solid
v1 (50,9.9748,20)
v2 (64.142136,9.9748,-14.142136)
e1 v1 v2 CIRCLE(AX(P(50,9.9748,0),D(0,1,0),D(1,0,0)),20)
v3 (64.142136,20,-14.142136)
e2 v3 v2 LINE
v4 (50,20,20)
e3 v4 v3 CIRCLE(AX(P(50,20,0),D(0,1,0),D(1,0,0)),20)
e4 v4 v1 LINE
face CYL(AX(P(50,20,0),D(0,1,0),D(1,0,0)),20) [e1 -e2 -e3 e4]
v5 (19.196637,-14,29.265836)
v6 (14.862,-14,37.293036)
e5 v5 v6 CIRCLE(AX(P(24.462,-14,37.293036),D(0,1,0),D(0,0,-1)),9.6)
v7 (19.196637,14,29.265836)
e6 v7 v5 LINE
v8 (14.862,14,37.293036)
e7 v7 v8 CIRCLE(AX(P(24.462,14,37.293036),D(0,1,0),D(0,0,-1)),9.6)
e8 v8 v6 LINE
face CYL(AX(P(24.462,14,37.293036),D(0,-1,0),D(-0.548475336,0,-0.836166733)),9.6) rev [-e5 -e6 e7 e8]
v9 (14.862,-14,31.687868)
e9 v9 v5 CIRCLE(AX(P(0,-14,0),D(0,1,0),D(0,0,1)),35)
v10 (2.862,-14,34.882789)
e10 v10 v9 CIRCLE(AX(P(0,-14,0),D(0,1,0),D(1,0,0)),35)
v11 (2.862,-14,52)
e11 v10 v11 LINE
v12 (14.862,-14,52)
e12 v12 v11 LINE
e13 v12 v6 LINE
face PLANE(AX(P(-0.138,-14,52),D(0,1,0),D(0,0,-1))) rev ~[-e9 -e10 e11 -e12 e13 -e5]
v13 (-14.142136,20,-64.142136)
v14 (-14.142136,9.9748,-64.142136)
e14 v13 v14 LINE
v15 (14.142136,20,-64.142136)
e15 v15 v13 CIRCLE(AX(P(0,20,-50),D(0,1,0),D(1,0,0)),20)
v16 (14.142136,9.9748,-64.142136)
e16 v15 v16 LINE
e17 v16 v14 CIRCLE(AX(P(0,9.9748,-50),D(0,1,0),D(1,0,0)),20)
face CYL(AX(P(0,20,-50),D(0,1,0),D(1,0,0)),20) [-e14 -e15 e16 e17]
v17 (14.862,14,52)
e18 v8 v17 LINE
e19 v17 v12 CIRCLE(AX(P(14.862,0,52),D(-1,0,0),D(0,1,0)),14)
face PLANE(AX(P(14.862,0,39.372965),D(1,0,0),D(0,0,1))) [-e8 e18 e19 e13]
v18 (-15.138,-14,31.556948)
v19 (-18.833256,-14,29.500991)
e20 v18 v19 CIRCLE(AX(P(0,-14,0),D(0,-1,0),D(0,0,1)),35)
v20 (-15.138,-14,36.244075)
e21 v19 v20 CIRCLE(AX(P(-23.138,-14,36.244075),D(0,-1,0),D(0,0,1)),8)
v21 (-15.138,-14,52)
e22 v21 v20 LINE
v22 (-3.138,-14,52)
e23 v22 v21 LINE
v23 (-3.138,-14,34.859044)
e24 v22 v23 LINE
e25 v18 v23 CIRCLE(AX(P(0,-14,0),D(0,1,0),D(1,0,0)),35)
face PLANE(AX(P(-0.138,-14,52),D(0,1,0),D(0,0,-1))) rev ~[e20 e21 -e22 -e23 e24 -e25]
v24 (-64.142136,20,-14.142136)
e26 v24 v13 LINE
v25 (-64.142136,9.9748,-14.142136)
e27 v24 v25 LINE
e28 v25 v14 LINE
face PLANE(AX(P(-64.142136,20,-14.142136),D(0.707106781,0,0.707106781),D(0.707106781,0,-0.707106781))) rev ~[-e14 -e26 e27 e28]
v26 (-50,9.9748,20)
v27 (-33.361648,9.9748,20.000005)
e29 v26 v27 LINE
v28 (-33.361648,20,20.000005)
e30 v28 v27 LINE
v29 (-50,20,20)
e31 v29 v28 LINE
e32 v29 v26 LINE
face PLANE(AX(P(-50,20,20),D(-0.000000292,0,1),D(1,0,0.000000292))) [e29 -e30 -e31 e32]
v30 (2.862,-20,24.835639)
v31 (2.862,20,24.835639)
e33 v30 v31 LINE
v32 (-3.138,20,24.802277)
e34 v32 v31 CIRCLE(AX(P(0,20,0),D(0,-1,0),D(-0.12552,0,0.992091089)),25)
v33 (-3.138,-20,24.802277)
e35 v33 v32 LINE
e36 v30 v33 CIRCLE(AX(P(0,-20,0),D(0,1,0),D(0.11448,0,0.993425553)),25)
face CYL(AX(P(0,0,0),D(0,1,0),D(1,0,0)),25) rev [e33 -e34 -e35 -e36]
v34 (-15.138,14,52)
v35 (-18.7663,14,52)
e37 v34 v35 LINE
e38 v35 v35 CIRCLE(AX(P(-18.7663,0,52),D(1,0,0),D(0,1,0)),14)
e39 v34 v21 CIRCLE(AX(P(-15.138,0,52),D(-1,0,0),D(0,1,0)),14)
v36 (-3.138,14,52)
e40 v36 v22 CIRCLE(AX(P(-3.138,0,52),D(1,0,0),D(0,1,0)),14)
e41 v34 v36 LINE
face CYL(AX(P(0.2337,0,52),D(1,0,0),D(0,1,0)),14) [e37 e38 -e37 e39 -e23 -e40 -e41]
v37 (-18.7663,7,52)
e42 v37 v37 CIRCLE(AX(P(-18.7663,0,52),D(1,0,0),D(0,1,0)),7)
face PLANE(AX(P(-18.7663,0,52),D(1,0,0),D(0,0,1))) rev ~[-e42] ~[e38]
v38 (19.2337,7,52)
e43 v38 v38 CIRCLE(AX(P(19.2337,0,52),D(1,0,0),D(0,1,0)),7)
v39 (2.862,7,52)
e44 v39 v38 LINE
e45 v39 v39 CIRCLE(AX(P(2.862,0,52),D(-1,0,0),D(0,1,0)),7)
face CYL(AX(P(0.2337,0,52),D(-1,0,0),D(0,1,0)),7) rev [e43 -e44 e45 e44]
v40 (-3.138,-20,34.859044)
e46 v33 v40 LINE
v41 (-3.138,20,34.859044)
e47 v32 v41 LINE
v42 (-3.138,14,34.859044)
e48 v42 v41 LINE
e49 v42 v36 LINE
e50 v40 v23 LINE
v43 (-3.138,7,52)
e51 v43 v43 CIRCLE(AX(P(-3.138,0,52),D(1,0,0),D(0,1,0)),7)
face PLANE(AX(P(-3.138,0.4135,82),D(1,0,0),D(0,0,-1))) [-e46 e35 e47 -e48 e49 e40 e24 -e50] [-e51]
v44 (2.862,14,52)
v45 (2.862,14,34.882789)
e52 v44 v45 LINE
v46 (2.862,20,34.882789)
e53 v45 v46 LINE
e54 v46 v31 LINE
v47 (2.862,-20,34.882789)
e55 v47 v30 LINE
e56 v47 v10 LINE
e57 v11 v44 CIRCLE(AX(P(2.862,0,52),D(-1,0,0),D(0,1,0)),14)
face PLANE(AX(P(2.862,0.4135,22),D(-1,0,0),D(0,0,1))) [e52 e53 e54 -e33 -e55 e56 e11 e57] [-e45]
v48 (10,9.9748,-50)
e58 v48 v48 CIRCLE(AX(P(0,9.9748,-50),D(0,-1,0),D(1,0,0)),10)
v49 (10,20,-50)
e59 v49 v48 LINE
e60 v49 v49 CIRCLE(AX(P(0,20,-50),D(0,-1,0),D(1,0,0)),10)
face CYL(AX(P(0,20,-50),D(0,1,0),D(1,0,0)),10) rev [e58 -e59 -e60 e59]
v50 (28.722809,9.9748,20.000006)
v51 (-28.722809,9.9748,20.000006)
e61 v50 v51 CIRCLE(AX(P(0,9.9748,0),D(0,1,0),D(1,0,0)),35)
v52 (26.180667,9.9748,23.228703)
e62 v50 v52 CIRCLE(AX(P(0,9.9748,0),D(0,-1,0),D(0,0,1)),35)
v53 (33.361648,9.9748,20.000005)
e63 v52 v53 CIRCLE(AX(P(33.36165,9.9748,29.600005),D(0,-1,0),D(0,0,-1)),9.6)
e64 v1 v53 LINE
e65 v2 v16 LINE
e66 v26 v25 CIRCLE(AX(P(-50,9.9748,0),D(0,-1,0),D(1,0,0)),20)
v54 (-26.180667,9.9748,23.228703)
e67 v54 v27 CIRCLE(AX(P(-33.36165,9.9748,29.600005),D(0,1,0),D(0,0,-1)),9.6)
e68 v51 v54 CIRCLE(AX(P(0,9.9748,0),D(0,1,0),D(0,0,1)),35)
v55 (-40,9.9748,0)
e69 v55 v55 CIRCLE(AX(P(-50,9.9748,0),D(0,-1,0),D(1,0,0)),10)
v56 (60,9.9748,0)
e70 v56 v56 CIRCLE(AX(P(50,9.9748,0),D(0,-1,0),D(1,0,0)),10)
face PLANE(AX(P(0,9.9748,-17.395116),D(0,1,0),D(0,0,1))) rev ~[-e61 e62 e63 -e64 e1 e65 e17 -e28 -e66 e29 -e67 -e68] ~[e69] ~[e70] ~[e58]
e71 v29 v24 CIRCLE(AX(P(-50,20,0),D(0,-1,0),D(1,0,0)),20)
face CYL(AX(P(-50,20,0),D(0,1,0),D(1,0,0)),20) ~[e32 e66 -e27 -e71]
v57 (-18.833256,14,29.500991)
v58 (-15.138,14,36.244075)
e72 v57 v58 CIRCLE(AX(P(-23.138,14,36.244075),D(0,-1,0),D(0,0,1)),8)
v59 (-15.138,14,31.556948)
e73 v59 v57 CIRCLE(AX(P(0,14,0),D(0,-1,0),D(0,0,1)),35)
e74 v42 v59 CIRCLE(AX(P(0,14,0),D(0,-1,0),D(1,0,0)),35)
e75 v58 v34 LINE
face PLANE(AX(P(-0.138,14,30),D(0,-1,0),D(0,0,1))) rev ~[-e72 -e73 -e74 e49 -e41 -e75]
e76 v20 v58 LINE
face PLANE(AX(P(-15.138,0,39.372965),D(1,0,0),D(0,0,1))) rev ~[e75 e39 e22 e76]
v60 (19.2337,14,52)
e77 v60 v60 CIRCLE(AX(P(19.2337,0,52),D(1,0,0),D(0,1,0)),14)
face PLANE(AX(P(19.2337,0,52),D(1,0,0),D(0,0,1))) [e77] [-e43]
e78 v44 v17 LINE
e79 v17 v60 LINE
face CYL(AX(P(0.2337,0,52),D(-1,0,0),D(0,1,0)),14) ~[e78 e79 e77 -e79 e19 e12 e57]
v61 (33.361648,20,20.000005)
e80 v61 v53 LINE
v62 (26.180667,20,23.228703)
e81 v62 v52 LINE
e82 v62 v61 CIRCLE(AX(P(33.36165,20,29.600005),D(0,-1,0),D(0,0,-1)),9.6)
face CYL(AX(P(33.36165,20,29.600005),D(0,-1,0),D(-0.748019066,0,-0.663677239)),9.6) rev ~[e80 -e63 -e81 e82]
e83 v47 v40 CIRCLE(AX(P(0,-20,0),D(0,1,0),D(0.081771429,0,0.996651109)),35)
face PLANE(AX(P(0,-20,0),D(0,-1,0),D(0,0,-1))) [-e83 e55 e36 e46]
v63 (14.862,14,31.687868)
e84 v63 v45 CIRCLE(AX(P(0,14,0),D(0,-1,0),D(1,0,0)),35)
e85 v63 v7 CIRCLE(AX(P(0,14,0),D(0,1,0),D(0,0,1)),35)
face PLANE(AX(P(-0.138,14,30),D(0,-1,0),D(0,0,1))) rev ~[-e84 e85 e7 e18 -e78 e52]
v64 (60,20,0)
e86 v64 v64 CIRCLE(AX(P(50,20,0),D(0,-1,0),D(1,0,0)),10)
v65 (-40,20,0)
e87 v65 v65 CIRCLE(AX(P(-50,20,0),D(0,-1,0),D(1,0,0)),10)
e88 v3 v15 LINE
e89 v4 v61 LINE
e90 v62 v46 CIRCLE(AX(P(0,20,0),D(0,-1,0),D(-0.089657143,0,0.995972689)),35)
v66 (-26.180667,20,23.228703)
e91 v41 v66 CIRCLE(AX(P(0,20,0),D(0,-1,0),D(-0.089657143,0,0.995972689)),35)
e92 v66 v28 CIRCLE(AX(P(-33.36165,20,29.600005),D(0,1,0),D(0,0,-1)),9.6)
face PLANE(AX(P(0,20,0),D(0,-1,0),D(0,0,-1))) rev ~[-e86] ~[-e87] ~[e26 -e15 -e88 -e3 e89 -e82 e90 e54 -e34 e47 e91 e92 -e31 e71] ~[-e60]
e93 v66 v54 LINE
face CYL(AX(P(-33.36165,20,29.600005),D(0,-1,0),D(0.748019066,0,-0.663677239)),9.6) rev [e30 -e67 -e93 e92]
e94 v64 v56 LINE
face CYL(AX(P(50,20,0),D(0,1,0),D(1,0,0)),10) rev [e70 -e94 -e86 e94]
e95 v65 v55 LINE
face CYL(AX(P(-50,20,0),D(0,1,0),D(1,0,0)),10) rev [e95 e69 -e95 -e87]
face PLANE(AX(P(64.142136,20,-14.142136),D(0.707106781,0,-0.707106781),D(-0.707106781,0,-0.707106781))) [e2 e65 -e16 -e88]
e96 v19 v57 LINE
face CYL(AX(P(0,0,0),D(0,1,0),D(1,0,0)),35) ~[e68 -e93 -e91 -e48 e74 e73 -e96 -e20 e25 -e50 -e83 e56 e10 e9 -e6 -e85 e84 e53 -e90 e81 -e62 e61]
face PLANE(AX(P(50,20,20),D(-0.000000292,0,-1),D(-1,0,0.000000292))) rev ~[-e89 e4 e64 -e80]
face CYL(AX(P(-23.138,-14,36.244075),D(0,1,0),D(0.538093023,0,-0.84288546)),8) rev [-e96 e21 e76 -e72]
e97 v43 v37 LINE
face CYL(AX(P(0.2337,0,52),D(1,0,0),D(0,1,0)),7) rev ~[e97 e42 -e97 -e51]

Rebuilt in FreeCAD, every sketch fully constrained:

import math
import FreeCAD as App
import Part
import Sketcher
Q = App.Units.Quantity


def edges_at(feature, points):
    """Names of the edges that pass closest to the given points."""
    edges = feature.Shape.Edges
    near = lambda p: min(range(len(edges)), key=lambda i: edges[i].distToShape(Part.Vertex(*p))[0])
    return sorted({f"Edge{near(p) + 1}" for p in points})


def add_polygon(sketch, points):
    """Adds a closed chain of lines whose ends are joined by coincident constraints."""
    first, n = sketch.GeometryCount, len(points)
    for a, b in zip(points, points[1:] + points[:1]):
        sketch.addGeometry(Part.LineSegment(App.Vector(*a, 0), App.Vector(*b, 0)), False)
    for i in range(n):
        sketch.addConstraint(Sketcher.Constraint("Coincident", first + i, 2, first + (i + 1) % n, 1))

doc = App.newDocument("Part")
body = doc.addObject("PartDesign::Body", "Body")

# Sketch on XZ plane
sketch1 = doc.addObject("Sketcher::SketchObject", "Sketch")
body.addObject(sketch1)
sketch1.AttachmentSupport = (doc.XZ_Plane, [""])
sketch1.MapMode = "FlatFace"
sketch1.addGeometry([
    Part.Circle(App.Vector(0, 0, 0), App.Vector(0, 0, 1), 35),
    Part.Circle(App.Vector(0, 0, 0), App.Vector(0, 0, 1), 25),
], False)
sketch1.addConstraint([
    Sketcher.Constraint("Coincident", 0, 3, -1, 1),
    Sketcher.Constraint("Coincident", 1, 3, -1, 1),
    Sketcher.Constraint("Diameter", 0, Q("70 mm")),
    Sketcher.Constraint("Diameter", 1, Q("50 mm")),
])
pad1 = doc.addObject("PartDesign::Pad", "Pad")
body.addObject(pad1)
pad1.Profile = sketch1
pad1.Length = 40
pad1.Midplane = True

# Sketch on YZ plane
sketch2 = doc.addObject("Sketcher::SketchObject", "Sketch001")
body.addObject(sketch2)
sketch2.AttachmentSupport = (doc.YZ_Plane, [""])
sketch2.MapMode = "FlatFace"
sketch2.AttachmentOffset = App.Placement(App.Vector(0, 0, -0.138), App.Rotation())
sketch2.addGeometry([
    Part.LineSegment(App.Vector(-14, 52, 0), App.Vector(-14, 30, 0)),
    Part.LineSegment(App.Vector(-14, 30, 0), App.Vector(14, 30, 0)),
    Part.LineSegment(App.Vector(14, 30, 0), App.Vector(14, 52, 0)),
    Part.ArcOfCircle(Part.Circle(App.Vector(0, 52, 0), App.Vector(0, 0, 1), 14), math.radians(180), math.radians(360)),
], False)
sketch2.addConstraint([
    Sketcher.Constraint("Coincident", 0, 2, 1, 1),
    Sketcher.Constraint("Coincident", 1, 2, 2, 1),
    Sketcher.Constraint("Tangent", 2, 2, 3, 2),
    Sketcher.Constraint("Tangent", 3, 1, 0, 1),
    Sketcher.Constraint("Vertical", 0),
    Sketcher.Constraint("Horizontal", 1),
    Sketcher.Constraint("Vertical", 2),
    Sketcher.Constraint("PointOnObject", 3, 3, -2),
    Sketcher.Constraint("Radius", 3, Q("14 mm")),
    Sketcher.Constraint("DistanceY", 0, 2, 0, 1, Q("22 mm")),
    Sketcher.Constraint("DistanceY", -1, 1, 3, 3, Q("52 mm")),
])
pad2 = doc.addObject("PartDesign::Pad", "Pad001")
body.addObject(pad2)
pad2.Profile = sketch2
pad2.Length = 30
pad2.Midplane = True

# Sketch on YZ plane
sketch3 = doc.addObject("Sketcher::SketchObject", "Sketch002")
body.addObject(sketch3)
sketch3.AttachmentSupport = (doc.YZ_Plane, [""])
sketch3.MapMode = "FlatFace"
sketch3.AttachmentOffset = App.Placement(App.Vector(0, 0, 0.2337), App.Rotation())
sketch3.addGeometry([
    Part.Circle(App.Vector(0, 52, 0), App.Vector(0, 0, 1), 14),
    Part.Circle(App.Vector(0, 52, 0), App.Vector(0, 0, 1), 7),
], False)
sketch3.addConstraint([
    Sketcher.Constraint("Coincident", 1, 3, 0, 3),
    Sketcher.Constraint("PointOnObject", 0, 3, -2),
    Sketcher.Constraint("Diameter", 0, Q("28 mm")),
    Sketcher.Constraint("Diameter", 1, Q("14 mm")),
    Sketcher.Constraint("DistanceY", -1, 1, 0, 3, Q("52 mm")),
])
pad3 = doc.addObject("PartDesign::Pad", "Pad002")
body.addObject(pad3)
pad3.Profile = sketch3
pad3.Length = 38
pad3.Midplane = True

# Sketch on XZ plane
sketch4 = doc.addObject("Sketcher::SketchObject", "Sketch003")
body.addObject(sketch4)
sketch4.AttachmentSupport = (doc.XZ_Plane, [""])
sketch4.MapMode = "FlatFace"
sketch4.AttachmentOffset = App.Placement(App.Vector(0, 0, -0.4135), App.Rotation())
add_polygon(sketch4, [(-3, 22), (3, 22), (3, 82), (-3, 82)])  # lines 0-3
sketch4.addConstraint([
    Sketcher.Constraint("Horizontal", 0),
    Sketcher.Constraint("Vertical", 1),
    Sketcher.Constraint("Horizontal", 2),
    Sketcher.Constraint("Vertical", 3),
    Sketcher.Constraint("DistanceX", 0, 1, 0, 2, Q("6 mm")),
    Sketcher.Constraint("DistanceY", 1, 1, 1, 2, Q("60 mm")),
    Sketcher.Constraint("DistanceY", -1, 1, 0, 2, Q("22 mm")),
    Sketcher.Constraint("DistanceX", -1, 1, 0, 2, Q("2.862 mm")),
])
pocket1 = doc.addObject("PartDesign::Pocket", "Pocket")
body.addObject(pocket1)
pocket1.Profile = sketch4
pocket1.Length = 100.3367
pocket1.Midplane = True

# Sketch on XZ plane
sketch5 = doc.addObject("Sketcher::SketchObject", "Sketch004")
body.addObject(sketch5)
sketch5.AttachmentSupport = (doc.XZ_Plane, [""])
sketch5.MapMode = "FlatFace"
sketch5.AttachmentOffset = App.Placement(App.Vector(0, 0, -20), App.Rotation())
sketch5.addGeometry([
    Part.ArcOfCircle(Part.Circle(App.Vector(50, 0, 0), App.Vector(0, 0, 1), 20), math.radians(-45), math.radians(90)),  # 0
    Part.LineSegment(App.Vector(50, 20, 0), App.Vector(29, 20, 0)),  # 1
    Part.ArcOfCircle(Part.Circle(App.Vector(0, 0, 0), App.Vector(0, 0, 1), 35), math.radians(145), math.radians(395)),  # 2
    Part.LineSegment(App.Vector(-29, 20, 0), App.Vector(-50, 20, 0)),  # 3
    Part.ArcOfCircle(Part.Circle(App.Vector(-50, 0, 0), App.Vector(0, 0, 1), 20), math.radians(90), math.radians(225)),  # 4
    Part.LineSegment(App.Vector(-64, -14, 0), App.Vector(-14, -64, 0)),  # 5
    Part.ArcOfCircle(Part.Circle(App.Vector(0, -50, 0), App.Vector(0, 0, 1), 20), math.radians(-135), math.radians(-45)),  # 6
    Part.LineSegment(App.Vector(14, -64, 0), App.Vector(64, -14, 0)),  # 7
    Part.Circle(App.Vector(0, -50, 0), App.Vector(0, 0, 1), 10),  # 8
    Part.Circle(App.Vector(-50, 0, 0), App.Vector(0, 0, 1), 10),  # 9
    Part.Circle(App.Vector(50, 0, 0), App.Vector(0, 0, 1), 10),  # 10
], False)
sketch5.addConstraint([
    Sketcher.Constraint("Tangent", 0, 2, 1, 1),
    Sketcher.Constraint("Coincident", 1, 2, 2, 2),
    Sketcher.Constraint("Coincident", 2, 1, 3, 1),
    Sketcher.Constraint("Tangent", 3, 2, 4, 1),
    Sketcher.Constraint("Tangent", 4, 2, 5, 1),
    Sketcher.Constraint("Tangent", 5, 2, 6, 1),
    Sketcher.Constraint("Tangent", 6, 2, 7, 1),
    Sketcher.Constraint("Tangent", 7, 2, 0, 1),
    Sketcher.Constraint("Horizontal", 1),
    Sketcher.Constraint("Horizontal", 3),
    Sketcher.Constraint("Coincident", 2, 3, -1, 1),
    Sketcher.Constraint("Coincident", 8, 3, 6, 3),
    Sketcher.Constraint("Coincident", 9, 3, 4, 3),
    Sketcher.Constraint("Coincident", 10, 3, 0, 3),
    Sketcher.Constraint("Equal", 0, 4),
    Sketcher.Constraint("Equal", 4, 6),
    Sketcher.Constraint("Equal", 8, 9),
    Sketcher.Constraint("Equal", 9, 10),
    Sketcher.Constraint("Symmetric", 0, 3, 4, 3, -1, 1),
    Sketcher.Constraint("Symmetric", 5, 2, 6, 2, -2),
    Sketcher.Constraint("Perpendicular", 5, 7),
    Sketcher.Constraint("Diameter", 8, Q("20 mm")),
    Sketcher.Constraint("Radius", 0, Q("20 mm")),
    Sketcher.Constraint("Radius", 2, Q("35 mm")),
    Sketcher.Constraint("DistanceX", -1, 1, 0, 3, Q("50 mm")),
])
pad4 = doc.addObject("PartDesign::Pad", "Pad003")
body.addObject(pad4)
pad4.Profile = sketch5
pad4.Length = 10.0252
doc.recompute()

fillet = doc.addObject("PartDesign::Fillet", "Fillet")
body.addObject(fillet)
fillet.Base = (pad4, edges_at(pad4, [(-15.138, 0, 31.557)]))
fillet.Radius = 8
doc.recompute()

fillet2 = doc.addObject("PartDesign::Fillet", "Fillet001")
body.addObject(fillet2)
fillet2.Base = (fillet, edges_at(fillet, [(-28.723, 14.987, 20), (28.723, 14.987, 20), (14.862, 0, 31.688)]))
fillet2.Radius = 9.6

doc.recompute()
